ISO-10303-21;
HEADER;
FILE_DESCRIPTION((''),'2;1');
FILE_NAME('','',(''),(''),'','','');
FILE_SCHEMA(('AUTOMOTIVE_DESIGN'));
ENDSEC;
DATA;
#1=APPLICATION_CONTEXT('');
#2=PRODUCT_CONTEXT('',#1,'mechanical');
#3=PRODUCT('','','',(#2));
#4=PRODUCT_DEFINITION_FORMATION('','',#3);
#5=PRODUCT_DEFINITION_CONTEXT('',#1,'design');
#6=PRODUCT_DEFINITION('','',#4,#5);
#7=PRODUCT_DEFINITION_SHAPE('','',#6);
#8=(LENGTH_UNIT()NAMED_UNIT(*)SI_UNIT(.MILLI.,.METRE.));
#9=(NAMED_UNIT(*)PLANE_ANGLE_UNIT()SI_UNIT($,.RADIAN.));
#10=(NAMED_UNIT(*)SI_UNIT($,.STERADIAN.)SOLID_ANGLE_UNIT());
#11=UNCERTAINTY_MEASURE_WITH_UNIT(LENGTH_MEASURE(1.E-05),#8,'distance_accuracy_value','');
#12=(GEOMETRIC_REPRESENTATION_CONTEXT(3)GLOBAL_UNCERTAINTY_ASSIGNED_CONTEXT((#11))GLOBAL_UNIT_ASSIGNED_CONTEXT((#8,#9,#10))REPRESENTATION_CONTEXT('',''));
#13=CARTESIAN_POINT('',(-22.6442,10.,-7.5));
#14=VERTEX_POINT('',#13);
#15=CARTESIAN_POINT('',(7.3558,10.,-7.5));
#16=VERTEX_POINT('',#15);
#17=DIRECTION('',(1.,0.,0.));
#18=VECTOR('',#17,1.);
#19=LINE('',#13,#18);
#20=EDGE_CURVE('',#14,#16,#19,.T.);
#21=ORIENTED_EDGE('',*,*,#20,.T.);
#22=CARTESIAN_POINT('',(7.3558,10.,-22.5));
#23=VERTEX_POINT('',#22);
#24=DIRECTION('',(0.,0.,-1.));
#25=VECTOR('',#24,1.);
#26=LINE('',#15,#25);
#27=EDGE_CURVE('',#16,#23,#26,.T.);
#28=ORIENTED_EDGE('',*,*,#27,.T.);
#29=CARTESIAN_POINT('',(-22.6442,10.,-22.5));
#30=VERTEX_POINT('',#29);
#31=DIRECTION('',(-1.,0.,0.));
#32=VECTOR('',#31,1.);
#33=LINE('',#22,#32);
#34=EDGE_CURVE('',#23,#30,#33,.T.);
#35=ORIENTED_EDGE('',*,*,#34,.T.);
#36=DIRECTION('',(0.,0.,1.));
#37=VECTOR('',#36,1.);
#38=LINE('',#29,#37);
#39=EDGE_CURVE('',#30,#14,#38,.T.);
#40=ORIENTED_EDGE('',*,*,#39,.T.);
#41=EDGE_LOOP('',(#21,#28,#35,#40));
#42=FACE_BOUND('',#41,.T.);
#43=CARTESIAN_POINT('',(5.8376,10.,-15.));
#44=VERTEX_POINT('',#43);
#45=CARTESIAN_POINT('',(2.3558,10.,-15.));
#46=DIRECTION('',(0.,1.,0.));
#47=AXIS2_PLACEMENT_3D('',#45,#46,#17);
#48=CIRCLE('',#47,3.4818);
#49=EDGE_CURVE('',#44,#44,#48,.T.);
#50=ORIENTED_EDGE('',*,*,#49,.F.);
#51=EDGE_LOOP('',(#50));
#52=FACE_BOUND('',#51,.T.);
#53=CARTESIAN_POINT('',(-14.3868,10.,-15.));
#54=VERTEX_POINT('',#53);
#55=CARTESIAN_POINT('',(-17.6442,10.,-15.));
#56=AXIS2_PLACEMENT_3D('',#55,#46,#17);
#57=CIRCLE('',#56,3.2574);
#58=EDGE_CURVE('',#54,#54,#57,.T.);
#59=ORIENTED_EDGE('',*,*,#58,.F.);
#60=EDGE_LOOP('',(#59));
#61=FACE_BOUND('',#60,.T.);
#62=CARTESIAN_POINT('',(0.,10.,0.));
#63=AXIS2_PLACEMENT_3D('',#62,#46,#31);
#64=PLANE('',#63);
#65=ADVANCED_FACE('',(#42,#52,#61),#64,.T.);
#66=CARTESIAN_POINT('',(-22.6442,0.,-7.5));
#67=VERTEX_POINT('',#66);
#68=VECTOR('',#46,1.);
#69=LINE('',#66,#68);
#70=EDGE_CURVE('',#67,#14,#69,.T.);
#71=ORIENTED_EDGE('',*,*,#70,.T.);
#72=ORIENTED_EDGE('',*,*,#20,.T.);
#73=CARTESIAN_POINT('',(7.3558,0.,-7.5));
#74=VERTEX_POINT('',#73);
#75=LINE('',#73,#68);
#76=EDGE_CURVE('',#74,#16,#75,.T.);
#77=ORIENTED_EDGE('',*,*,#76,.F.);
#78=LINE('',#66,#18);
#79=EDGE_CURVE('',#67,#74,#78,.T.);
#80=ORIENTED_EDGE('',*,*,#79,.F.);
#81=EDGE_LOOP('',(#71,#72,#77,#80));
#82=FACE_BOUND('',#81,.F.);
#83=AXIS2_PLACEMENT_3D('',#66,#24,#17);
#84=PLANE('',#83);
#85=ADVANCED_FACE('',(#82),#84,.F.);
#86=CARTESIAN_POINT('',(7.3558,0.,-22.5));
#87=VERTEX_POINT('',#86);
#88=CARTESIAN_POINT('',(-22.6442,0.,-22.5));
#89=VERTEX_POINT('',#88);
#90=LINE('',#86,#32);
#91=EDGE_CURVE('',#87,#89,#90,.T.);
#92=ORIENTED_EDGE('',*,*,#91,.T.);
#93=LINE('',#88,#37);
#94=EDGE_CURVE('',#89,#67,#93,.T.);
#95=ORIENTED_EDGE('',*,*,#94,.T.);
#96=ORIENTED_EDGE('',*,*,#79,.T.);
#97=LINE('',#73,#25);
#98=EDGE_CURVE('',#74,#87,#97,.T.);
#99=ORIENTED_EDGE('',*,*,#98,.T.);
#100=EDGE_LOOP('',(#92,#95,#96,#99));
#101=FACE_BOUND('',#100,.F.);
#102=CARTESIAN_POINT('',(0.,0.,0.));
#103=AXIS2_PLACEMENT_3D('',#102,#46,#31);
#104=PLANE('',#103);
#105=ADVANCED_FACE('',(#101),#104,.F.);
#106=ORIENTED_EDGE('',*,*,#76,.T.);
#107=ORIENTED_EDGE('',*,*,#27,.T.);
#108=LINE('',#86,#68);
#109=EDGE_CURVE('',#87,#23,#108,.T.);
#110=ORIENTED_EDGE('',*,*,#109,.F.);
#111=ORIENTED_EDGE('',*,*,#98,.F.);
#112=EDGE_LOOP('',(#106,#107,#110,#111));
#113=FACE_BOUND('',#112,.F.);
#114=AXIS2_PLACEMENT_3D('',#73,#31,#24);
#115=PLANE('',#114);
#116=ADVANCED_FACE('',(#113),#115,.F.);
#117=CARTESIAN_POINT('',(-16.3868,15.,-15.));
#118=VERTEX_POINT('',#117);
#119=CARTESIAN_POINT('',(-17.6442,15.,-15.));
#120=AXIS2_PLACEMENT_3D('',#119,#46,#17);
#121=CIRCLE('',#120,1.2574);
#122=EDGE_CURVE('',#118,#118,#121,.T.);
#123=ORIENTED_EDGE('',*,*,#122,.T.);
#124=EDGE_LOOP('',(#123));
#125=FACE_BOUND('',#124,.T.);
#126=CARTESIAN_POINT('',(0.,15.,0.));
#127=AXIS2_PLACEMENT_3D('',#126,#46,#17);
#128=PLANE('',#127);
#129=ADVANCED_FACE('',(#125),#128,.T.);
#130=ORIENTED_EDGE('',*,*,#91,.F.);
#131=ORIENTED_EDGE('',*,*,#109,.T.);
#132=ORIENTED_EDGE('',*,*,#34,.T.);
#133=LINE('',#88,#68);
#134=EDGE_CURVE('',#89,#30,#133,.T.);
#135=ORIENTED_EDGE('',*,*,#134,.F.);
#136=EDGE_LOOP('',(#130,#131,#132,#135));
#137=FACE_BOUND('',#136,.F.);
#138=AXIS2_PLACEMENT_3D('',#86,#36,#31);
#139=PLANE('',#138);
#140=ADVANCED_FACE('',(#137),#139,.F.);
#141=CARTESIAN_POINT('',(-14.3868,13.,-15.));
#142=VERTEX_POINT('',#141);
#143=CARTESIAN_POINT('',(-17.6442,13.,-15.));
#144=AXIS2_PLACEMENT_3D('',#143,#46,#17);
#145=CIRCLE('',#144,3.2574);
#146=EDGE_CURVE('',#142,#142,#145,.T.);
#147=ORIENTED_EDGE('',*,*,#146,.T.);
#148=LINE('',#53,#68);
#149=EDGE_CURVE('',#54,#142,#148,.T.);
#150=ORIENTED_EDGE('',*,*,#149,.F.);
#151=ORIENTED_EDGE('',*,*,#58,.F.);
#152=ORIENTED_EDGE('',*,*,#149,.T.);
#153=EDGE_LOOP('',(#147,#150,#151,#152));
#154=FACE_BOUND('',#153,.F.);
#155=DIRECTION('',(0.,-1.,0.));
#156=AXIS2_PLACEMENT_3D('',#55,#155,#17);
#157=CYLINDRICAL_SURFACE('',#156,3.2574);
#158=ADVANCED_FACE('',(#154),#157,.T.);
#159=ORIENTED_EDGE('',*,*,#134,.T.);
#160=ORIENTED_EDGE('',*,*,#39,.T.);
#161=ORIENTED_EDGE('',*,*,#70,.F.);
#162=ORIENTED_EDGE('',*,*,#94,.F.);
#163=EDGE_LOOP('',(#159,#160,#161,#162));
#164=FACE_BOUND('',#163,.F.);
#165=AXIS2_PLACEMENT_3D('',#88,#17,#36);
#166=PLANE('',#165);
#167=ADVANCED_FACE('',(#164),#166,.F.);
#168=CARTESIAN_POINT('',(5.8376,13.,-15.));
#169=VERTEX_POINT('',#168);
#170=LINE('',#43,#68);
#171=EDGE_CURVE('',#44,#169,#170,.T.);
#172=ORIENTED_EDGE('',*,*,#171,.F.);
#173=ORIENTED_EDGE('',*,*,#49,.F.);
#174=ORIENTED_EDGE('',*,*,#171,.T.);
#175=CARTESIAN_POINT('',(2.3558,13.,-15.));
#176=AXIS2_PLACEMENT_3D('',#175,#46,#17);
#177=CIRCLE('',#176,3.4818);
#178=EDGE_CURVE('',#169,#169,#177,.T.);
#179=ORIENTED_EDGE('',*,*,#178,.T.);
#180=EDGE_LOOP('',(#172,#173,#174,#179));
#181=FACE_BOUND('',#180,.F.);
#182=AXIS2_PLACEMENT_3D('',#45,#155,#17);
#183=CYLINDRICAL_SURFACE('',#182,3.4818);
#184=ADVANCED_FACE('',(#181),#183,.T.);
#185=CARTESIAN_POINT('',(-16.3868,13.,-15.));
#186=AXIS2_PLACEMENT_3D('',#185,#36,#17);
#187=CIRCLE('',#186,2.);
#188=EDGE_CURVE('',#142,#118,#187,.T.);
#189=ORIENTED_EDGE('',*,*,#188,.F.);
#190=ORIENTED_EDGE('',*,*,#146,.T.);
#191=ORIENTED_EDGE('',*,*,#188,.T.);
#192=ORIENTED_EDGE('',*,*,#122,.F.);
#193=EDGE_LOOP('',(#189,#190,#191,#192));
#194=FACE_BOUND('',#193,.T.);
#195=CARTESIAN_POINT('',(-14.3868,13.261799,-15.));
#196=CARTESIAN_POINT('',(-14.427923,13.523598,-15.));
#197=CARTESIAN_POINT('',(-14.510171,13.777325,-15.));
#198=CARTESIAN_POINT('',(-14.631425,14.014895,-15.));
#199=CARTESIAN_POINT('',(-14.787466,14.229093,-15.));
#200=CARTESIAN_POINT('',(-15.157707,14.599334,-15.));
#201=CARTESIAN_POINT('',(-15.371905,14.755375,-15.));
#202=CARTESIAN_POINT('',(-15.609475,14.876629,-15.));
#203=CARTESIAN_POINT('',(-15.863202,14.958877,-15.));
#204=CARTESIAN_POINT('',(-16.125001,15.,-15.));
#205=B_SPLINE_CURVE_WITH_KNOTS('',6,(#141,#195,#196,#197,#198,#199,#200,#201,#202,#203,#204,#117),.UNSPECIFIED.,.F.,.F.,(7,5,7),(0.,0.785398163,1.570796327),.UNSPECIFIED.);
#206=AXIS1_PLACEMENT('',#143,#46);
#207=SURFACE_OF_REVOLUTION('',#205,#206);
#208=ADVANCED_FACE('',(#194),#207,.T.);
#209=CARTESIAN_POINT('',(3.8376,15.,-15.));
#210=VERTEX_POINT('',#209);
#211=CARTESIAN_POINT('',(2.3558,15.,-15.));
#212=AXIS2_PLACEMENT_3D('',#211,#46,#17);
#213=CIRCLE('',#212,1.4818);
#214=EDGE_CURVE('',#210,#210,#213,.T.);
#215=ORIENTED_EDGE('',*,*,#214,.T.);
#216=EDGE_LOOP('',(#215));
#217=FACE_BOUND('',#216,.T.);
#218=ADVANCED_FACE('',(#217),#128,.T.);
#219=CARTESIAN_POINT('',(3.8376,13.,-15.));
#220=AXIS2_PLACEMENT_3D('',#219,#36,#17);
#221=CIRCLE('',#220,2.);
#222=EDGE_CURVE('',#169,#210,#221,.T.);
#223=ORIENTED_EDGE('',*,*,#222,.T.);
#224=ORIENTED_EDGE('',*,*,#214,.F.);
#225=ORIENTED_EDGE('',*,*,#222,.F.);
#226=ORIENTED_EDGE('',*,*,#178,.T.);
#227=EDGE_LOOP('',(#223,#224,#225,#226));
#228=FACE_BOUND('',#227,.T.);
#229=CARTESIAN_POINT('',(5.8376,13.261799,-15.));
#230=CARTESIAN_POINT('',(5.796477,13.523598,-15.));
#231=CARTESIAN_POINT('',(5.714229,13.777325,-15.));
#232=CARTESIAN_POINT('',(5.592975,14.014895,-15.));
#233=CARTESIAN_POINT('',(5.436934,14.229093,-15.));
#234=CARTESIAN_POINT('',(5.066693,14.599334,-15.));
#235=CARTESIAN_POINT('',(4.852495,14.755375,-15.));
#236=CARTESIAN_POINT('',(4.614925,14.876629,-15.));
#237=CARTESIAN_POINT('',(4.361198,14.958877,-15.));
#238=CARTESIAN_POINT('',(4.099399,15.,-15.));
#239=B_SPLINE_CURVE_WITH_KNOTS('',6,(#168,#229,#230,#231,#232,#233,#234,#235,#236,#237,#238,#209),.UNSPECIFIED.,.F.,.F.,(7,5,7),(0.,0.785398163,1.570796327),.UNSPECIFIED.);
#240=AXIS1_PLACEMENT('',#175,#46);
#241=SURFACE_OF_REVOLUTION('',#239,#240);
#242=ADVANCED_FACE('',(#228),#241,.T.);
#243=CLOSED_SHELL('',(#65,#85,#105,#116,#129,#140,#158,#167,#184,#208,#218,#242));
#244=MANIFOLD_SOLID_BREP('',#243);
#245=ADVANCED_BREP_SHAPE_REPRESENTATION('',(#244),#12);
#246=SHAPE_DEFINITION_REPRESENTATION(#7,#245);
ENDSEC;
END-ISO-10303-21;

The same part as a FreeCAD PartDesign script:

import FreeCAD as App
import Part
import Sketcher


def edges_at(feature, points):
    """Names of the edges that pass closest to the given points."""
    edges = feature.Shape.Edges
    near = lambda p: min(range(len(edges)), key=lambda i: edges[i].distToShape(Part.Vertex(*p))[0])
    return sorted({f"Edge{near(p) + 1}" for p in points})

doc = App.newDocument("Part")
body = doc.addObject("PartDesign::Body", "Body")

sketch1 = body.newObject("Sketcher::SketchObject", "Sketch")
sketch1.AttachmentSupport = (doc.getObject("XZ_Plane"), [""])
sketch1.MapMode = "FlatFace"
sketch1.addGeometry([
    Part.LineSegment(App.Vector(-22.6442, -22.5, 0), App.Vector(-22.6442, -7.5, 0)),
    Part.LineSegment(App.Vector(-22.6442, -7.5, 0), App.Vector(7.3558, -7.5, 0)),
    Part.LineSegment(App.Vector(7.3558, -7.5, 0), App.Vector(7.3558, -22.5, 0)),
    Part.LineSegment(App.Vector(7.3558, -22.5, 0), App.Vector(-22.6442, -22.5, 0)),
], False)
sketch1.addConstraint([
    Sketcher.Constraint("Coincident", 0, 2, 1, 1),
    Sketcher.Constraint("Coincident", 1, 2, 2, 1),
    Sketcher.Constraint("Coincident", 2, 2, 3, 1),
    Sketcher.Constraint("Coincident", 3, 2, 0, 1),
    Sketcher.Constraint("Vertical", 0),
    Sketcher.Constraint("Horizontal", 1),
    Sketcher.Constraint("Vertical", 2),
    Sketcher.Constraint("Horizontal", 3),
    Sketcher.Constraint("DistanceX", 1, 1, 1, 2, 30.0),
    Sketcher.Constraint("DistanceY", 0, 1, 0, 2, 15.0),
    Sketcher.Constraint("DistanceY", 0, 2, -1, 1, 7.5),
    Sketcher.Constraint("DistanceX", 0, 2, -1, 1, 22.6442),
])
pad1 = body.newObject("PartDesign::Pad", "Pad")
pad1.Profile = sketch1
pad1.Length = 10
pad1.Reversed = True

sketch2 = body.newObject("Sketcher::SketchObject", "Sketch001")
sketch2.AttachmentSupport = (doc.getObject("XZ_Plane"), [""])
sketch2.MapMode = "FlatFace"
sketch2.AttachmentOffset = App.Placement(App.Vector(0, 0, -10), App.Rotation())
sketch2.addGeometry([
    Part.Circle(App.Vector(-17.6442, -15, 0), App.Vector(0, 0, 1), 3.2574),
    Part.Circle(App.Vector(2.3558, -15, 0), App.Vector(0, 0, 1), 3.4818),
], False)
sketch2.addConstraint([
    Sketcher.Constraint("Horizontal", 0, 3, 1, 3),
    Sketcher.Constraint("DistanceY", 0, 3, -1, 1, 15.0),
    Sketcher.Constraint("DistanceX", 0, 3, 1, 3, 20.0),
    Sketcher.Constraint("Diameter", 0, 6.5148),
    Sketcher.Constraint("Diameter", 1, 6.9636),
    Sketcher.Constraint("DistanceX", 0, 3, -1, 1, 17.6442),
])
pad2 = body.newObject("PartDesign::Pad", "Pad001")
pad2.Profile = sketch2
pad2.Length = 5
pad2.Reversed = True
doc.recompute()

fillet = body.newObject("PartDesign::Fillet", "Fillet")
fillet.Base = (pad2, edges_at(pad2, [(-20.902, 15, -15), (-1.126, 15, -15)]))
fillet.Radius = 2

doc.recompute()
